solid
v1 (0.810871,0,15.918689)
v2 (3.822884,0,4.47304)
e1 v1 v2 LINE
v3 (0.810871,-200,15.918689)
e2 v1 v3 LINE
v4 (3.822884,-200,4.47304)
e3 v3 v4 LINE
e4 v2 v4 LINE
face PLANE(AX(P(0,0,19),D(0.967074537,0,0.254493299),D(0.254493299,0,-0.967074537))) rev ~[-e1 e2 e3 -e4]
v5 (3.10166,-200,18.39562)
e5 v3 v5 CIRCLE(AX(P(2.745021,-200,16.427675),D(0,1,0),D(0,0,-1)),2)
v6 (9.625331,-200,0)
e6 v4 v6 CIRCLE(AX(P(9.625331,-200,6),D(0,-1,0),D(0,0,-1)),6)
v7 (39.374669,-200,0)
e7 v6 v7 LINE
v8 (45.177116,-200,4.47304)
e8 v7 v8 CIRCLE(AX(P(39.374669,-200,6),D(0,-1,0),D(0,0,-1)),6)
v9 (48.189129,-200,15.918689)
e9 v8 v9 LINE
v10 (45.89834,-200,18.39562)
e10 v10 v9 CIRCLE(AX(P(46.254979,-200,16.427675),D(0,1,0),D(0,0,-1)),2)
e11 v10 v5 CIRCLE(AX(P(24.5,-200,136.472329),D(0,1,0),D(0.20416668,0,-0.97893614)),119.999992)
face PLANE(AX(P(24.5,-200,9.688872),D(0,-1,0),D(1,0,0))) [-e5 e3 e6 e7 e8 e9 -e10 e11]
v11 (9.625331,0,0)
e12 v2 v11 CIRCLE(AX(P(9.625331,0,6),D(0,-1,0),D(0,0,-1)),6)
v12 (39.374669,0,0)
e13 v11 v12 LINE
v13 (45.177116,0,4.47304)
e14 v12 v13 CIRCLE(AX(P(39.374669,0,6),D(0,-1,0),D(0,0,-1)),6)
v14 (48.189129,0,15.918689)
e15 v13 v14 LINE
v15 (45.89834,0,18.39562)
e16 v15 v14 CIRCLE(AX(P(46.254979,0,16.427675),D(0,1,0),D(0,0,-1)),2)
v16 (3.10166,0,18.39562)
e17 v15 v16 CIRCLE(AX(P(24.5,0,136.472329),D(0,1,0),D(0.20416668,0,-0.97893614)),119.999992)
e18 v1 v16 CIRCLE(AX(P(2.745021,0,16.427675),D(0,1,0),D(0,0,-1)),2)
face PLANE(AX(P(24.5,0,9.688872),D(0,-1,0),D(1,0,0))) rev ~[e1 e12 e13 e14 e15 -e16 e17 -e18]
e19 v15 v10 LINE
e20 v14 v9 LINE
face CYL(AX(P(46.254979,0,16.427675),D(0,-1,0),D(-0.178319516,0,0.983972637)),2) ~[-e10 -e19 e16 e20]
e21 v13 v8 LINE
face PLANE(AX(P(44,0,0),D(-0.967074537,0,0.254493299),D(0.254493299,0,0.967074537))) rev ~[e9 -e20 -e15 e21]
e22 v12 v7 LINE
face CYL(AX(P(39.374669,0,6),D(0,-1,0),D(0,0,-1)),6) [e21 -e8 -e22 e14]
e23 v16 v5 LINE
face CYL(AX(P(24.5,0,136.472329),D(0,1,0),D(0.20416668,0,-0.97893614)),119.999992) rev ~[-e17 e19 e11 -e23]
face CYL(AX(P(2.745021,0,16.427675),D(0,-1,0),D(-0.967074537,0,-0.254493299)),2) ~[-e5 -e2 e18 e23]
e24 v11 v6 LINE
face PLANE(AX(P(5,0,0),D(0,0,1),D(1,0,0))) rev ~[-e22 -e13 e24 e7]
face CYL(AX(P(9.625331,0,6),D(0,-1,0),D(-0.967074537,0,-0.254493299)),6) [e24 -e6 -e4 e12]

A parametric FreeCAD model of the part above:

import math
import FreeCAD as App
import Part
import Sketcher

V = App.Vector


def edges_at(feature, points):
    """Names of the edges that pass closest to the given points."""
    edges = feature.Shape.Edges
    near = lambda p: min(range(len(edges)), key=lambda i: edges[i].distToShape(Part.Vertex(*p))[0])
    return sorted({f"Edge{near(p) + 1}" for p in points})

doc = App.newDocument("Part")
body = doc.addObject("PartDesign::Body", "Body")

sketch1 = body.newObject("Sketcher::SketchObject", "Sketch")
sketch1.AttachmentSupport = (doc.getObject("XZ_Plane"), [""])
sketch1.MapMode = "FlatFace"
sketch1.addGeometry(Part.LineSegment(V(0, 19, 0), V(5, 0, 0)), False)
sketch1.addGeometry(Part.LineSegment(V(5, 0, 0), V(44, 0, 0)), False)
sketch1.addGeometry(Part.LineSegment(V(44, 0, 0), V(49, 19, 0)), False)
sketch1.addGeometry(Part.ArcOfCircle(Part.Circle(V(24, 136, 0), V(0, 0, 1), 120), math.radians(-102), math.radians(-78)), False)
sketch1.addConstraint(Sketcher.Constraint("Coincident", 0, 2, 1, 1))
sketch1.addConstraint(Sketcher.Constraint("Coincident", 1, 2, 2, 1))
sketch1.addConstraint(Sketcher.Constraint("Coincident", 2, 2, 3, 2))
sketch1.addConstraint(Sketcher.Constraint("Coincident", 3, 1, 0, 1))
sketch1.addConstraint(Sketcher.Constraint("Horizontal", 1))
sketch1.addConstraint(Sketcher.Constraint("PointOnObject", 0, 2, -1))
sketch1.addConstraint(Sketcher.Constraint("PointOnObject", 3, 1, -2))
sketch1.addConstraint(Sketcher.Constraint("Horizontal", 2, 2, 3, 1))
sketch1.addConstraint(Sketcher.Constraint("Equal", 0, 2))
sketch1.addConstraint(Sketcher.Constraint("DistanceX", 1, 1, 1, 2, 39.0))
sketch1.addConstraint(Sketcher.Constraint("DistanceX", -1, 1, 0, 2, 5.0))
sketch1.addConstraint(Sketcher.Constraint("DistanceY", -1, 1, 2, 2, 19.0))
sketch1.addConstraint(Sketcher.Constraint("Radius", 3, 119.999992))
pad1 = body.newObject("PartDesign::Pad", "Pad")
pad1.Profile = sketch1
pad1.Length = 200
doc.recompute()

fillet = body.newObject("PartDesign::Fillet", "Fillet")
fillet.Base = (pad1, edges_at(pad1, [(5, -100, 0), (44, -100, 0)]))
fillet.Radius = 6
doc.recompute()

fillet2 = body.newObject("PartDesign::Fillet", "Fillet001")
fillet2.Base = (fillet, edges_at(fillet, [(49, -100, 19), (0, -100, 19)]))
fillet2.Radius = 2

doc.recompute()
